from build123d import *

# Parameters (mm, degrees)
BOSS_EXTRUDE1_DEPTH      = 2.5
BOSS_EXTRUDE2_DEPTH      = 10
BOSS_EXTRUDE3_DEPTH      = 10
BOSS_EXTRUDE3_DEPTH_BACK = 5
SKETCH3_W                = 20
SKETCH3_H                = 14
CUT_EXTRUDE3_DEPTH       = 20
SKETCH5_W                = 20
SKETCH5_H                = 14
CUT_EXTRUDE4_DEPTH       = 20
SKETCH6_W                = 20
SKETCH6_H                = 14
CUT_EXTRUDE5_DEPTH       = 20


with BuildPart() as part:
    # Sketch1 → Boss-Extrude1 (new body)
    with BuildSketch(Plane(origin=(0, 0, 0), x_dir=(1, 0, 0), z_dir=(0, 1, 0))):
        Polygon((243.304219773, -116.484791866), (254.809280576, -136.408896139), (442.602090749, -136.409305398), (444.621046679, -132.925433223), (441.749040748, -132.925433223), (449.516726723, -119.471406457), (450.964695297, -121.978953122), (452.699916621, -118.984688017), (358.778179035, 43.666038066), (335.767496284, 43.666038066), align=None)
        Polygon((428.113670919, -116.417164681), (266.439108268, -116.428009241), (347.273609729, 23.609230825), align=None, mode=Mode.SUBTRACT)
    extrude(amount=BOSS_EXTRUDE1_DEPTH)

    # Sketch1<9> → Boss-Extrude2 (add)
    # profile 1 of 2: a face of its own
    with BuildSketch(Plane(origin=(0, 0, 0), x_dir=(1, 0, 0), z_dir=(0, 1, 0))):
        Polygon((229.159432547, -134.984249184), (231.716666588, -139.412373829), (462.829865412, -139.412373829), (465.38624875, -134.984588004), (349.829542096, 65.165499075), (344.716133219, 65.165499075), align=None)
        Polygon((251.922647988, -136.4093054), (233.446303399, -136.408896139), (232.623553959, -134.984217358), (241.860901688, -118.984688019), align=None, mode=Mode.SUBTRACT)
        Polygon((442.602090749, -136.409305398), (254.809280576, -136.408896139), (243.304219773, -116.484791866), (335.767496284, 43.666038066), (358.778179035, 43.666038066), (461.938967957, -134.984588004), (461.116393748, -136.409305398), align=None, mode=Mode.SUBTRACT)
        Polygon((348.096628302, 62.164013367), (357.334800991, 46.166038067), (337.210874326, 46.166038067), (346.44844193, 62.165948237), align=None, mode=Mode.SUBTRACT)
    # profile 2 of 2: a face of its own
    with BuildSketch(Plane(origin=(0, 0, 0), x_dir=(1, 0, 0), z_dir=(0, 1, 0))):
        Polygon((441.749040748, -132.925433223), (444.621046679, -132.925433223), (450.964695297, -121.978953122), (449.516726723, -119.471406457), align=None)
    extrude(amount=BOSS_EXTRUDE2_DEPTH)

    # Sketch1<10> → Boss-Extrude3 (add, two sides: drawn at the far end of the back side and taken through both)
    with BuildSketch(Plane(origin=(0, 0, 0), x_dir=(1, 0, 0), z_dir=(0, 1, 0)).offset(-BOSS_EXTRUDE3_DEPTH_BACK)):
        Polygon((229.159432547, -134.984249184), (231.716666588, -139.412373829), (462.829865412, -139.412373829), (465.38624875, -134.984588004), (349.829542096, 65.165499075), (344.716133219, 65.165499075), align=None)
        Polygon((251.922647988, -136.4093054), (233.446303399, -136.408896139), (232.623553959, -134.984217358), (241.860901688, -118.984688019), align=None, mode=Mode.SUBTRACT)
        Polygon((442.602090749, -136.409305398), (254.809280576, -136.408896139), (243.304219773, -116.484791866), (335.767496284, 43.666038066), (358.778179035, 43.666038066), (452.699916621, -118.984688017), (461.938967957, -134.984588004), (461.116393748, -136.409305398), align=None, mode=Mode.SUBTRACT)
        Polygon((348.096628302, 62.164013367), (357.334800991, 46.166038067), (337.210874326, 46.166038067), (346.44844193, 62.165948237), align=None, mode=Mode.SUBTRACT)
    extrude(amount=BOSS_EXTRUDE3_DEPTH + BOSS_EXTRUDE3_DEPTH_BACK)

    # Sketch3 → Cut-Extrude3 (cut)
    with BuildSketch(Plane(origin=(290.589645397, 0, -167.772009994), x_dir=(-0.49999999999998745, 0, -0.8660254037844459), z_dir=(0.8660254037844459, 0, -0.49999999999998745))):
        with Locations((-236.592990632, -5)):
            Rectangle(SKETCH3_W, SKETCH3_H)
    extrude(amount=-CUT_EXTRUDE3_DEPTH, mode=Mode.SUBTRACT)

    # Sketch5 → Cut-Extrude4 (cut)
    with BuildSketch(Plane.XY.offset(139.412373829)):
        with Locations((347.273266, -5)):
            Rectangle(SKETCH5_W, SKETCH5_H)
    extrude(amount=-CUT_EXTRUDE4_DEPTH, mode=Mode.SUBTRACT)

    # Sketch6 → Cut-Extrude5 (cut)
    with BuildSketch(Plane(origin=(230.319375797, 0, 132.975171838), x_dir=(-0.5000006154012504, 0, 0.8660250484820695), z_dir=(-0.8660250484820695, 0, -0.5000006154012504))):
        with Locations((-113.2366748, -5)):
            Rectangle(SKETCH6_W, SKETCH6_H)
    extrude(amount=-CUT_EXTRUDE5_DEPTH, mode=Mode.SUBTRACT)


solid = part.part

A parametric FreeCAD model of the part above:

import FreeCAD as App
import Part
import Sketcher

V = App.Vector


def add_polygon(sketch, points):
    """Adds a closed chain of lines whose ends are joined by coincident constraints."""
    first, n = sketch.GeometryCount, len(points)
    for a, b in zip(points, points[1:] + points[:1]):
        sketch.addGeometry(Part.LineSegment(App.Vector(*a, 0), App.Vector(*b, 0)), False)
    for i in range(n):
        sketch.addConstraint(Sketcher.Constraint("Coincident", first + i, 2, first + (i + 1) % n, 1))

doc = App.newDocument("Part")
body = doc.addObject("PartDesign::Body", "Body")

# Sketch on XZ plane
sketch1 = body.newObject("Sketcher::SketchObject", "Sketch")
sketch1.AttachmentSupport = (doc.getObject("XZ_Plane"), [""])
sketch1.MapMode = "FlatFace"
add_polygon(sketch1, [(243.30422, 116.484792), (254.809281, 136.408896), (442.602091, 136.409305), (444.621047, 132.925433), (441.749041, 132.925433), (449.516727, 119.471406), (450.964695, 121.978953), (452.699917, 118.984688), (358.778179, -43.666038), (335.767496, -43.666038)])  # lines 0-9
add_polygon(sketch1, [(347.27361, -23.609231), (428.113671, 116.417165), (266.439108, 116.428009)])  # lines 10-12
sketch1.addConstraint(Sketcher.Constraint("Horizontal", 3))
sketch1.addConstraint(Sketcher.Constraint("Horizontal", 8))
sketch1.addConstraint(Sketcher.Constraint("DistanceY", 4, 2, 1, 2, 16.937899))
sketch1.addConstraint(Sketcher.Constraint("DistanceX", 8, 2, 5, 2, 115.197199))
sketch1.addConstraint(Sketcher.Constraint("DistanceX", 11, 2, 12, 2, 80.834501))
sketch1.addConstraint(Sketcher.Constraint("Distance", 0, 23.007311))
sketch1.addConstraint(Sketcher.Constraint("Distance", 1, 187.79281))
sketch1.addConstraint(Sketcher.Constraint("Distance", 4, 15.535372))
sketch1.addConstraint(Sketcher.Constraint("Distance", 7, 187.82053))
sketch1.addConstraint(Sketcher.Constraint("Distance", 12, 161.693059))
sketch1.addConstraint(Sketcher.Constraint("DistanceX", 3, 2, 3, 1, 2.872006))
sketch1.addConstraint(Sketcher.Constraint("DistanceX", 8, 2, 8, 1, 23.010683))
sketch1.addConstraint(Sketcher.Constraint("DistanceX", -1, 1, 0, 2, 254.809281))
sketch1.addConstraint(Sketcher.Constraint("DistanceX", -1, 1, 3, 2, 441.749041))
sketch1.addConstraint(Sketcher.Constraint("DistanceY", -1, 1, 6, 2, 118.984688))
sketch1.addConstraint(Sketcher.Constraint("DistanceX", -1, 1, 7, 2, 358.778179))
sketch1.addConstraint(Sketcher.Constraint("DistanceY", 7, 2, -1, 1, 43.666038))
sketch1.addConstraint(Sketcher.Constraint("DistanceX", -1, 1, 9, 2, 243.30422))
sketch1.addConstraint(Sketcher.Constraint("DistanceY", -1, 1, 9, 2, 116.484792))
sketch1.addConstraint(Sketcher.Constraint("DistanceX", -1, 1, 10, 2, 428.113671))
sketch1.addConstraint(Sketcher.Constraint("DistanceX", -1, 1, 11, 2, 266.439108))
sketch1.addConstraint(Sketcher.Constraint("DistanceY", -1, 1, 11, 2, 116.428009))
sketch1.addConstraint(Sketcher.Constraint("DistanceY", 0, 2, 1, 2, 0.000409))
sketch1.addConstraint(Sketcher.Constraint("DistanceX", 2, 2, 4, 2, 4.89568))
sketch1.addConstraint(Sketcher.Constraint("DistanceY", 5, 2, 2, 2, 10.94648))
sketch1.addConstraint(Sketcher.Constraint("DistanceY", 10, 2, 3, 2, 16.508269))
pad1 = body.newObject("PartDesign::Pad", "Pad")
pad1.Profile = sketch1
pad1.Length = 2.5
pad1.Reversed = True

# Sketch on XZ plane
sketch2 = body.newObject("Sketcher::SketchObject", "Sketch001")
sketch2.AttachmentSupport = (doc.getObject("XZ_Plane"), [""])
sketch2.MapMode = "FlatFace"
add_polygon(sketch2, [(229.159433, 134.984249), (231.716667, 139.412374), (462.829865, 139.412374), (465.386249, 134.984588), (349.829542, -65.165499), (344.716133, -65.165499)])  # lines 0-5
add_polygon(sketch2, [(241.860902, 118.984688), (251.922648, 136.409305), (233.446303, 136.408896), (232.623554, 134.984217)])  # lines 6-9
add_polygon(sketch2, [(461.116394, 136.409305), (442.602091, 136.409305), (254.809281, 136.408896), (243.30422, 116.484792), (335.767496, -43.666038), (358.778179, -43.666038), (461.938968, 134.984588)])  # lines 10-16
add_polygon(sketch2, [(346.448442, -62.165948), (348.096628, -62.164013), (357.334801, -46.166038), (337.210874, -46.166038)])  # lines 17-20
add_polygon(sketch2, [(441.749041, 132.925433), (444.621047, 132.925433), (450.964695, 121.978953), (449.516727, 119.471406)])  # lines 21-24
sketch2.addConstraint(Sketcher.Constraint("Horizontal", 1))
sketch2.addConstraint(Sketcher.Constraint("Horizontal", 4))
sketch2.addConstraint(Sketcher.Constraint("Horizontal", 10))
sketch2.addConstraint(Sketcher.Constraint("Horizontal", 14))
sketch2.addConstraint(Sketcher.Constraint("Horizontal", 19))
sketch2.addConstraint(Sketcher.Constraint("Horizontal", 21))
sketch2.addConstraint(Sketcher.Constraint("DistanceY", 18, 2, 14, 2, 2.5))
sketch2.addConstraint(Sketcher.Constraint("DistanceX", 1, 1, 1, 2, 231.113199))
sketch2.addConstraint(Sketcher.Constraint("DistanceX", 4, 2, 4, 1, 5.113409))
sketch2.addConstraint(Sketcher.Constraint("DistanceY", 3, 2, -1, 1, 65.165499))
sketch2.addConstraint(Sketcher.Constraint("DistanceX", -1, 1, 9, 2, 241.860902))
sketch2.addConstraint(Sketcher.Constraint("DistanceX", -1, 1, 18, 2, 357.334801))
sketch2.addConstraint(Sketcher.Constraint("DistanceX", 5, 2, 4, 2, 115.556701))
sketch2.addConstraint(Sketcher.Constraint("DistanceX", 6, 2, 2, 2, 213.463601))
sketch2.addConstraint(Sketcher.Constraint("DistanceX", 7, 2, 9, 2, 8.414598))
sketch2.addConstraint(Sketcher.Constraint("DistanceX", 20, 2, 3, 2, 3.3811))
sketch2.addConstraint(Sketcher.Constraint("DistanceX", 22, 2, 16, 2, 10.151698))
sketch2.addConstraint(Sketcher.Constraint("DistanceY", 23, 2, 10, 2, 16.937899))
sketch2.addConstraint(Sketcher.Constraint("Distance", 11, 187.79281))
sketch2.addConstraint(Sketcher.Constraint("Distance", 12, 23.007311))
sketch2.addConstraint(Sketcher.Constraint("Distance", 16, 1.645129))
sketch2.addConstraint(Sketcher.Constraint("Distance", 18, 18.473739))
sketch2.addConstraint(Sketcher.Constraint("Distance", 22, 12.651771))
sketch2.addConstraint(Sketcher.Constraint("Distance", 24, 15.535372))
sketch2.addConstraint(Sketcher.Constraint("DistanceX", 10, 2, 10, 1, 18.514303))
sketch2.addConstraint(Sketcher.Constraint("DistanceX", 14, 1, 14, 2, 23.010683))
sketch2.addConstraint(Sketcher.Constraint("DistanceX", 19, 2, 19, 1, 20.123927))
sketch2.addConstraint(Sketcher.Constraint("DistanceX", 21, 1, 21, 2, 2.872006))
sketch2.addConstraint(Sketcher.Constraint("DistanceX", -1, 1, 2, 2, 465.386249))
sketch2.addConstraint(Sketcher.Constraint("DistanceY", -1, 1, 2, 2, 134.984588))
sketch2.addConstraint(Sketcher.Constraint("DistanceY", -1, 1, 5, 2, 134.984249))
sketch2.addConstraint(Sketcher.Constraint("DistanceY", -1, 1, 9, 2, 118.984688))
sketch2.addConstraint(Sketcher.Constraint("DistanceX", -1, 1, 10, 2, 442.602091))
sketch2.addConstraint(Sketcher.Constraint("DistanceX", -1, 1, 12, 2, 243.30422))
sketch2.addConstraint(Sketcher.Constraint("DistanceY", -1, 1, 12, 2, 116.484792))
sketch2.addConstraint(Sketcher.Constraint("DistanceY", 13, 2, -1, 1, 43.666038))
sketch2.addConstraint(Sketcher.Constraint("DistanceX", -1, 1, 14, 2, 358.778179))
sketch2.addConstraint(Sketcher.Constraint("DistanceY", -1, 1, 15, 2, 134.984588))
sketch2.addConstraint(Sketcher.Constraint("DistanceX", -1, 1, 17, 2, 348.096628))
sketch2.addConstraint(Sketcher.Constraint("DistanceX", -1, 1, 20, 2, 346.448442))
sketch2.addConstraint(Sketcher.Constraint("DistanceY", 20, 2, -1, 1, 62.165948))
sketch2.addConstraint(Sketcher.Constraint("DistanceX", -1, 1, 24, 2, 441.749041))
sketch2.addConstraint(Sketcher.Constraint("DistanceX", 0, 2, 6, 2, 20.205981))
sketch2.addConstraint(Sketcher.Constraint("DistanceY", 6, 2, 0, 2, 3.003068))
sketch2.addConstraint(Sketcher.Constraint("DistanceY", 7, 2, 6, 2, 0.000409))
sketch2.addConstraint(Sketcher.Constraint("DistanceX", 8, 2, 7, 2, 0.822749))
sketch2.addConstraint(Sketcher.Constraint("DistanceY", 8, 2, 7, 2, 1.424679))
sketch2.addConstraint(Sketcher.Constraint("DistanceY", 9, 2, 8, 2, 15.999529))
sketch2.addConstraint(Sketcher.Constraint("DistanceY", 10, 2, 1, 2, 3.003068))
sketch2.addConstraint(Sketcher.Constraint("DistanceY", 21, 2, 1, 2, 6.486941))
pad2 = body.newObject("PartDesign::Pad", "Pad001")
pad2.Profile = sketch2
pad2.Length = 10
pad2.Reversed = True

# Sketch on XZ plane
sketch3 = body.newObject("Sketcher::SketchObject", "Sketch002")
sketch3.AttachmentSupport = (doc.getObject("XZ_Plane"), [""])
sketch3.MapMode = "FlatFace"
add_polygon(sketch3, [(229.159433, 134.984249), (231.716667, 139.412374), (462.829865, 139.412374), (465.386249, 134.984588), (349.829542, -65.165499), (344.716133, -65.165499)])  # lines 0-5
add_polygon(sketch3, [(241.860902, 118.984688), (251.922648, 136.409305), (233.446303, 136.408896), (232.623554, 134.984217)])  # lines 6-9
add_polygon(sketch3, [(461.116394, 136.409305), (442.602091, 136.409305), (254.809281, 136.408896), (243.30422, 116.484792), (335.767496, -43.666038), (358.778179, -43.666038), (452.699917, 118.984688), (461.938968, 134.984588)])  # lines 10-17
add_polygon(sketch3, [(346.448442, -62.165948), (348.096628, -62.164013), (357.334801, -46.166038), (337.210874, -46.166038)])  # lines 18-21
sketch3.addConstraint(Sketcher.Constraint("Horizontal", 1))
sketch3.addConstraint(Sketcher.Constraint("Horizontal", 4))
sketch3.addConstraint(Sketcher.Constraint("Horizontal", 10))
sketch3.addConstraint(Sketcher.Constraint("Horizontal", 14))
sketch3.addConstraint(Sketcher.Constraint("Horizontal", 20))
sketch3.addConstraint(Sketcher.Constraint("DistanceY", 19, 2, 14, 2, 2.5))
sketch3.addConstraint(Sketcher.Constraint("DistanceX", 1, 1, 1, 2, 231.113199))
sketch3.addConstraint(Sketcher.Constraint("DistanceX", 4, 2, 4, 1, 5.113409))
sketch3.addConstraint(Sketcher.Constraint("DistanceY", 3, 2, -1, 1, 65.165499))
sketch3.addConstraint(Sketcher.Constraint("DistanceX", -1, 1, 9, 2, 241.860902))
sketch3.addConstraint(Sketcher.Constraint("DistanceX", -1, 1, 19, 2, 357.334801))
sketch3.addConstraint(Sketcher.Constraint("DistanceX", 5, 2, 4, 2, 115.556701))
sketch3.addConstraint(Sketcher.Constraint("DistanceX", 6, 2, 2, 2, 213.463601))
sketch3.addConstraint(Sketcher.Constraint("DistanceX", 7, 2, 9, 2, 8.414598))
sketch3.addConstraint(Sketcher.Constraint("DistanceY", 15, 2, 2, 2, 15.9999))
sketch3.addConstraint(Sketcher.Constraint("DistanceY", 15, 2, 16, 2, 15.9999))
sketch3.addConstraint(Sketcher.Constraint("DistanceX", 21, 2, 3, 2, 3.3811))
sketch3.addConstraint(Sketcher.Constraint("Distance", 11, 187.79281))
sketch3.addConstraint(Sketcher.Constraint("Distance", 12, 23.007311))
sketch3.addConstraint(Sketcher.Constraint("Distance", 15, 187.82053))
sketch3.addConstraint(Sketcher.Constraint("Distance", 17, 1.645129))
sketch3.addConstraint(Sketcher.Constraint("Distance", 19, 18.473739))
sketch3.addConstraint(Sketcher.Constraint("DistanceX", 10, 2, 10, 1, 18.514303))
sketch3.addConstraint(Sketcher.Constraint("DistanceX", 14, 1, 14, 2, 23.010683))
sketch3.addConstraint(Sketcher.Constraint("DistanceX", 20, 2, 20, 1, 20.123927))
sketch3.addConstraint(Sketcher.Constraint("DistanceX", -1, 1, 2, 2, 465.386249))
sketch3.addConstraint(Sketcher.Constraint("DistanceY", -1, 1, 2, 2, 134.984588))
sketch3.addConstraint(Sketcher.Constraint("DistanceY", -1, 1, 5, 2, 134.984249))
sketch3.addConstraint(Sketcher.Constraint("DistanceY", -1, 1, 9, 2, 118.984688))
sketch3.addConstraint(Sketcher.Constraint("DistanceX", -1, 1, 10, 2, 442.602091))
sketch3.addConstraint(Sketcher.Constraint("DistanceX", -1, 1, 12, 2, 243.30422))
sketch3.addConstraint(Sketcher.Constraint("DistanceY", -1, 1, 12, 2, 116.484792))
sketch3.addConstraint(Sketcher.Constraint("DistanceY", 13, 2, -1, 1, 43.666038))
sketch3.addConstraint(Sketcher.Constraint("DistanceX", -1, 1, 14, 2, 358.778179))
sketch3.addConstraint(Sketcher.Constraint("DistanceX", -1, 1, 18, 2, 348.096628))
sketch3.addConstraint(Sketcher.Constraint("DistanceX", -1, 1, 21, 2, 346.448442))
sketch3.addConstraint(Sketcher.Constraint("DistanceY", 21, 2, -1, 1, 62.165948))
sketch3.addConstraint(Sketcher.Constraint("DistanceX", 0, 2, 6, 2, 20.205981))
sketch3.addConstraint(Sketcher.Constraint("DistanceY", 6, 2, 0, 2, 3.003068))
sketch3.addConstraint(Sketcher.Constraint("DistanceY", 7, 2, 6, 2, 0.000409))
sketch3.addConstraint(Sketcher.Constraint("DistanceX", 8, 2, 7, 2, 0.822749))
sketch3.addConstraint(Sketcher.Constraint("DistanceY", 8, 2, 7, 2, 1.424679))
sketch3.addConstraint(Sketcher.Constraint("DistanceY", 9, 2, 8, 2, 15.999529))
sketch3.addConstraint(Sketcher.Constraint("DistanceY", 10, 2, 1, 2, 3.003068))
pad3 = body.newObject("PartDesign::Pad", "Pad002")
pad3.Profile = sketch3
pad3.Type = "TwoLengths"
pad3.Length = 10
pad3.Length2 = 5
pad3.Reversed = True

# Sketch on an angled plane
sketch4 = body.newObject("Sketcher::SketchObject", "Sketch003")
sketch4.Placement = App.Placement(V(290.589645, 0, -167.77201), App.Rotation(V(-0.5, 0, -0.866025404), V(0, 1, 0), V(0.866025404, 0, -0.5), "ZXY"))
add_polygon(sketch4, [(-247, 2), (-247, -12), (-227, -12), (-227, 2)])  # lines 0-3
sketch4.addConstraint(Sketcher.Constraint("Vertical", 0))
sketch4.addConstraint(Sketcher.Constraint("Horizontal", 1))
sketch4.addConstraint(Sketcher.Constraint("Vertical", 2))
sketch4.addConstraint(Sketcher.Constraint("Horizontal", 3))
sketch4.addConstraint(Sketcher.Constraint("DistanceX", 1, 1, 1, 2, 20.0))
sketch4.addConstraint(Sketcher.Constraint("DistanceY", 0, 2, 0, 1, 14.0))
sketch4.addConstraint(Sketcher.Constraint("DistanceY", 0, 2, -1, 1, 12.0))
sketch4.addConstraint(Sketcher.Constraint("DistanceX", 0, 2, -1, 1, 246.592991))
pocket1 = body.newObject("PartDesign::Pocket", "Pocket")
pocket1.Profile = sketch4
pocket1.Length = 20

# Sketch on XY plane
sketch5 = body.newObject("Sketcher::SketchObject", "Sketch004")
sketch5.AttachmentSupport = (doc.getObject("XY_Plane"), [""])
sketch5.MapMode = "FlatFace"
sketch5.AttachmentOffset = App.Placement(V(0, 0, 139.412374), App.Rotation())
add_polygon(sketch5, [(337, 2), (337, -12), (357, -12), (357, 2)])  # lines 0-3
sketch5.addConstraint(Sketcher.Constraint("Vertical", 0))
sketch5.addConstraint(Sketcher.Constraint("Horizontal", 1))
sketch5.addConstraint(Sketcher.Constraint("Vertical", 2))
sketch5.addConstraint(Sketcher.Constraint("Horizontal", 3))
sketch5.addConstraint(Sketcher.Constraint("DistanceX", 1, 1, 1, 2, 20.0))
sketch5.addConstraint(Sketcher.Constraint("DistanceY", 0, 2, 0, 1, 14.0))
sketch5.addConstraint(Sketcher.Constraint("DistanceY", 0, 2, -1, 1, 12.0))
sketch5.addConstraint(Sketcher.Constraint("DistanceX", -1, 1, 0, 2, 337.273266))
pocket2 = body.newObject("PartDesign::Pocket", "Pocket001")
pocket2.Profile = sketch5
pocket2.Length = 20

# Sketch on an angled plane
sketch6 = body.newObject("Sketcher::SketchObject", "Sketch005")
sketch6.Placement = App.Placement(V(230.319376, 0, 132.975172), App.Rotation(V(-0.500000615, 0, 0.866025048), V(0, 0.999999999, 0), V(-0.866025048, 0, -0.500000615), "ZXY"))
add_polygon(sketch6, [(-123, 2), (-123, -12), (-103, -12), (-103, 2)])  # lines 0-3
sketch6.addConstraint(Sketcher.Constraint("Vertical", 0))
sketch6.addConstraint(Sketcher.Constraint("Horizontal", 1))
sketch6.addConstraint(Sketcher.Constraint("Vertical", 2))
sketch6.addConstraint(Sketcher.Constraint("Horizontal", 3))
sketch6.addConstraint(Sketcher.Constraint("DistanceX", 1, 1, 1, 2, 20.0))
sketch6.addConstraint(Sketcher.Constraint("DistanceY", 0, 2, 0, 1, 14.0))
sketch6.addConstraint(Sketcher.Constraint("DistanceY", 0, 2, -1, 1, 12.0))
sketch6.addConstraint(Sketcher.Constraint("DistanceX", 0, 2, -1, 1, 123.236675))
pocket3 = body.newObject("PartDesign::Pocket", "Pocket002")
pocket3.Profile = sketch6
pocket3.Length = 20

doc.recompute()
